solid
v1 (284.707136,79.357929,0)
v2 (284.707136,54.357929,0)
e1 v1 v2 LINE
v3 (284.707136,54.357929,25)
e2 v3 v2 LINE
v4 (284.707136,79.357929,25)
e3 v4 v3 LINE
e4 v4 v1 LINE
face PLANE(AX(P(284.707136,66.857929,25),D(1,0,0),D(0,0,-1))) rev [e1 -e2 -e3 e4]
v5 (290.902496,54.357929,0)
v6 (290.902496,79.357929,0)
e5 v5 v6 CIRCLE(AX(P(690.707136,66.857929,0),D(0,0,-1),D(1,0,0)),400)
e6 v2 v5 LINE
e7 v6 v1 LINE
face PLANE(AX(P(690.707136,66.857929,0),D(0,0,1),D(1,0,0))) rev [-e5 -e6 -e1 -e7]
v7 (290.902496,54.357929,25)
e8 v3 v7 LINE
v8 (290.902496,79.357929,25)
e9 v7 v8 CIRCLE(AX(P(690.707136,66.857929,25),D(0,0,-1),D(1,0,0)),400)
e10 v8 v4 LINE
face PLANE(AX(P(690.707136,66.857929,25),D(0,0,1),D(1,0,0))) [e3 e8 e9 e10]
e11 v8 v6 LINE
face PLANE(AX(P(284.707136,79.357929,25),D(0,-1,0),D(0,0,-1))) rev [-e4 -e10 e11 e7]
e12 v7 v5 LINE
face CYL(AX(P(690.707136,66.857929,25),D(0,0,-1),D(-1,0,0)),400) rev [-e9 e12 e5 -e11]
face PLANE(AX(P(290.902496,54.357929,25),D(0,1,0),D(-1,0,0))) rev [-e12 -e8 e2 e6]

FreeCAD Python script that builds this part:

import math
import FreeCAD as App
import Part
import Sketcher

doc = App.newDocument("Part")
body = doc.addObject("PartDesign::Body", "Body")

# Sketch on XY plane
sketch1 = body.newObject("Sketcher::SketchObject", "Sketch")
sketch1.AttachmentSupport = (doc.getObject("XY_Plane"), [""])
sketch1.MapMode = "FlatFace"
sketch1.addGeometry([
    Part.LineSegment(App.Vector(291, 79, 0), App.Vector(285, 79, 0)),
    Part.LineSegment(App.Vector(285, 79, 0), App.Vector(285, 54, 0)),
    Part.LineSegment(App.Vector(285, 54, 0), App.Vector(291, 54, 0)),
    Part.ArcOfCircle(Part.Circle(App.Vector(691, 67, 0), App.Vector(0, 0, 1), 400), math.radians(178.21), math.radians(181.79)),
], False)
sketch1.addConstraint([
    Sketcher.Constraint("Coincident", 0, 2, 1, 1),
    Sketcher.Constraint("Coincident", 1, 2, 2, 1),
    Sketcher.Constraint("Coincident", 2, 2, 3, 2),
    Sketcher.Constraint("Coincident", 3, 1, 0, 1),
    Sketcher.Constraint("Horizontal", 0),
    Sketcher.Constraint("Vertical", 1),
    Sketcher.Constraint("Horizontal", 2),
    Sketcher.Constraint("Vertical", 2, 2, 3, 1),
    Sketcher.Constraint("Radius", 3, 400.0),
    Sketcher.Constraint("DistanceY", 1, 2, 1, 1, 25.0),
    Sketcher.Constraint("DistanceX", 0, 2, 3, 3, 406.0),
    Sketcher.Constraint("DistanceY", -1, 1, 3, 3, 66.857929),
    Sketcher.Constraint("DistanceX", -1, 1, 3, 3, 690.707136),
])
pad1 = body.newObject("PartDesign::Pad", "Pad")
pad1.Profile = sketch1
pad1.Length = 25

doc.recompute()
